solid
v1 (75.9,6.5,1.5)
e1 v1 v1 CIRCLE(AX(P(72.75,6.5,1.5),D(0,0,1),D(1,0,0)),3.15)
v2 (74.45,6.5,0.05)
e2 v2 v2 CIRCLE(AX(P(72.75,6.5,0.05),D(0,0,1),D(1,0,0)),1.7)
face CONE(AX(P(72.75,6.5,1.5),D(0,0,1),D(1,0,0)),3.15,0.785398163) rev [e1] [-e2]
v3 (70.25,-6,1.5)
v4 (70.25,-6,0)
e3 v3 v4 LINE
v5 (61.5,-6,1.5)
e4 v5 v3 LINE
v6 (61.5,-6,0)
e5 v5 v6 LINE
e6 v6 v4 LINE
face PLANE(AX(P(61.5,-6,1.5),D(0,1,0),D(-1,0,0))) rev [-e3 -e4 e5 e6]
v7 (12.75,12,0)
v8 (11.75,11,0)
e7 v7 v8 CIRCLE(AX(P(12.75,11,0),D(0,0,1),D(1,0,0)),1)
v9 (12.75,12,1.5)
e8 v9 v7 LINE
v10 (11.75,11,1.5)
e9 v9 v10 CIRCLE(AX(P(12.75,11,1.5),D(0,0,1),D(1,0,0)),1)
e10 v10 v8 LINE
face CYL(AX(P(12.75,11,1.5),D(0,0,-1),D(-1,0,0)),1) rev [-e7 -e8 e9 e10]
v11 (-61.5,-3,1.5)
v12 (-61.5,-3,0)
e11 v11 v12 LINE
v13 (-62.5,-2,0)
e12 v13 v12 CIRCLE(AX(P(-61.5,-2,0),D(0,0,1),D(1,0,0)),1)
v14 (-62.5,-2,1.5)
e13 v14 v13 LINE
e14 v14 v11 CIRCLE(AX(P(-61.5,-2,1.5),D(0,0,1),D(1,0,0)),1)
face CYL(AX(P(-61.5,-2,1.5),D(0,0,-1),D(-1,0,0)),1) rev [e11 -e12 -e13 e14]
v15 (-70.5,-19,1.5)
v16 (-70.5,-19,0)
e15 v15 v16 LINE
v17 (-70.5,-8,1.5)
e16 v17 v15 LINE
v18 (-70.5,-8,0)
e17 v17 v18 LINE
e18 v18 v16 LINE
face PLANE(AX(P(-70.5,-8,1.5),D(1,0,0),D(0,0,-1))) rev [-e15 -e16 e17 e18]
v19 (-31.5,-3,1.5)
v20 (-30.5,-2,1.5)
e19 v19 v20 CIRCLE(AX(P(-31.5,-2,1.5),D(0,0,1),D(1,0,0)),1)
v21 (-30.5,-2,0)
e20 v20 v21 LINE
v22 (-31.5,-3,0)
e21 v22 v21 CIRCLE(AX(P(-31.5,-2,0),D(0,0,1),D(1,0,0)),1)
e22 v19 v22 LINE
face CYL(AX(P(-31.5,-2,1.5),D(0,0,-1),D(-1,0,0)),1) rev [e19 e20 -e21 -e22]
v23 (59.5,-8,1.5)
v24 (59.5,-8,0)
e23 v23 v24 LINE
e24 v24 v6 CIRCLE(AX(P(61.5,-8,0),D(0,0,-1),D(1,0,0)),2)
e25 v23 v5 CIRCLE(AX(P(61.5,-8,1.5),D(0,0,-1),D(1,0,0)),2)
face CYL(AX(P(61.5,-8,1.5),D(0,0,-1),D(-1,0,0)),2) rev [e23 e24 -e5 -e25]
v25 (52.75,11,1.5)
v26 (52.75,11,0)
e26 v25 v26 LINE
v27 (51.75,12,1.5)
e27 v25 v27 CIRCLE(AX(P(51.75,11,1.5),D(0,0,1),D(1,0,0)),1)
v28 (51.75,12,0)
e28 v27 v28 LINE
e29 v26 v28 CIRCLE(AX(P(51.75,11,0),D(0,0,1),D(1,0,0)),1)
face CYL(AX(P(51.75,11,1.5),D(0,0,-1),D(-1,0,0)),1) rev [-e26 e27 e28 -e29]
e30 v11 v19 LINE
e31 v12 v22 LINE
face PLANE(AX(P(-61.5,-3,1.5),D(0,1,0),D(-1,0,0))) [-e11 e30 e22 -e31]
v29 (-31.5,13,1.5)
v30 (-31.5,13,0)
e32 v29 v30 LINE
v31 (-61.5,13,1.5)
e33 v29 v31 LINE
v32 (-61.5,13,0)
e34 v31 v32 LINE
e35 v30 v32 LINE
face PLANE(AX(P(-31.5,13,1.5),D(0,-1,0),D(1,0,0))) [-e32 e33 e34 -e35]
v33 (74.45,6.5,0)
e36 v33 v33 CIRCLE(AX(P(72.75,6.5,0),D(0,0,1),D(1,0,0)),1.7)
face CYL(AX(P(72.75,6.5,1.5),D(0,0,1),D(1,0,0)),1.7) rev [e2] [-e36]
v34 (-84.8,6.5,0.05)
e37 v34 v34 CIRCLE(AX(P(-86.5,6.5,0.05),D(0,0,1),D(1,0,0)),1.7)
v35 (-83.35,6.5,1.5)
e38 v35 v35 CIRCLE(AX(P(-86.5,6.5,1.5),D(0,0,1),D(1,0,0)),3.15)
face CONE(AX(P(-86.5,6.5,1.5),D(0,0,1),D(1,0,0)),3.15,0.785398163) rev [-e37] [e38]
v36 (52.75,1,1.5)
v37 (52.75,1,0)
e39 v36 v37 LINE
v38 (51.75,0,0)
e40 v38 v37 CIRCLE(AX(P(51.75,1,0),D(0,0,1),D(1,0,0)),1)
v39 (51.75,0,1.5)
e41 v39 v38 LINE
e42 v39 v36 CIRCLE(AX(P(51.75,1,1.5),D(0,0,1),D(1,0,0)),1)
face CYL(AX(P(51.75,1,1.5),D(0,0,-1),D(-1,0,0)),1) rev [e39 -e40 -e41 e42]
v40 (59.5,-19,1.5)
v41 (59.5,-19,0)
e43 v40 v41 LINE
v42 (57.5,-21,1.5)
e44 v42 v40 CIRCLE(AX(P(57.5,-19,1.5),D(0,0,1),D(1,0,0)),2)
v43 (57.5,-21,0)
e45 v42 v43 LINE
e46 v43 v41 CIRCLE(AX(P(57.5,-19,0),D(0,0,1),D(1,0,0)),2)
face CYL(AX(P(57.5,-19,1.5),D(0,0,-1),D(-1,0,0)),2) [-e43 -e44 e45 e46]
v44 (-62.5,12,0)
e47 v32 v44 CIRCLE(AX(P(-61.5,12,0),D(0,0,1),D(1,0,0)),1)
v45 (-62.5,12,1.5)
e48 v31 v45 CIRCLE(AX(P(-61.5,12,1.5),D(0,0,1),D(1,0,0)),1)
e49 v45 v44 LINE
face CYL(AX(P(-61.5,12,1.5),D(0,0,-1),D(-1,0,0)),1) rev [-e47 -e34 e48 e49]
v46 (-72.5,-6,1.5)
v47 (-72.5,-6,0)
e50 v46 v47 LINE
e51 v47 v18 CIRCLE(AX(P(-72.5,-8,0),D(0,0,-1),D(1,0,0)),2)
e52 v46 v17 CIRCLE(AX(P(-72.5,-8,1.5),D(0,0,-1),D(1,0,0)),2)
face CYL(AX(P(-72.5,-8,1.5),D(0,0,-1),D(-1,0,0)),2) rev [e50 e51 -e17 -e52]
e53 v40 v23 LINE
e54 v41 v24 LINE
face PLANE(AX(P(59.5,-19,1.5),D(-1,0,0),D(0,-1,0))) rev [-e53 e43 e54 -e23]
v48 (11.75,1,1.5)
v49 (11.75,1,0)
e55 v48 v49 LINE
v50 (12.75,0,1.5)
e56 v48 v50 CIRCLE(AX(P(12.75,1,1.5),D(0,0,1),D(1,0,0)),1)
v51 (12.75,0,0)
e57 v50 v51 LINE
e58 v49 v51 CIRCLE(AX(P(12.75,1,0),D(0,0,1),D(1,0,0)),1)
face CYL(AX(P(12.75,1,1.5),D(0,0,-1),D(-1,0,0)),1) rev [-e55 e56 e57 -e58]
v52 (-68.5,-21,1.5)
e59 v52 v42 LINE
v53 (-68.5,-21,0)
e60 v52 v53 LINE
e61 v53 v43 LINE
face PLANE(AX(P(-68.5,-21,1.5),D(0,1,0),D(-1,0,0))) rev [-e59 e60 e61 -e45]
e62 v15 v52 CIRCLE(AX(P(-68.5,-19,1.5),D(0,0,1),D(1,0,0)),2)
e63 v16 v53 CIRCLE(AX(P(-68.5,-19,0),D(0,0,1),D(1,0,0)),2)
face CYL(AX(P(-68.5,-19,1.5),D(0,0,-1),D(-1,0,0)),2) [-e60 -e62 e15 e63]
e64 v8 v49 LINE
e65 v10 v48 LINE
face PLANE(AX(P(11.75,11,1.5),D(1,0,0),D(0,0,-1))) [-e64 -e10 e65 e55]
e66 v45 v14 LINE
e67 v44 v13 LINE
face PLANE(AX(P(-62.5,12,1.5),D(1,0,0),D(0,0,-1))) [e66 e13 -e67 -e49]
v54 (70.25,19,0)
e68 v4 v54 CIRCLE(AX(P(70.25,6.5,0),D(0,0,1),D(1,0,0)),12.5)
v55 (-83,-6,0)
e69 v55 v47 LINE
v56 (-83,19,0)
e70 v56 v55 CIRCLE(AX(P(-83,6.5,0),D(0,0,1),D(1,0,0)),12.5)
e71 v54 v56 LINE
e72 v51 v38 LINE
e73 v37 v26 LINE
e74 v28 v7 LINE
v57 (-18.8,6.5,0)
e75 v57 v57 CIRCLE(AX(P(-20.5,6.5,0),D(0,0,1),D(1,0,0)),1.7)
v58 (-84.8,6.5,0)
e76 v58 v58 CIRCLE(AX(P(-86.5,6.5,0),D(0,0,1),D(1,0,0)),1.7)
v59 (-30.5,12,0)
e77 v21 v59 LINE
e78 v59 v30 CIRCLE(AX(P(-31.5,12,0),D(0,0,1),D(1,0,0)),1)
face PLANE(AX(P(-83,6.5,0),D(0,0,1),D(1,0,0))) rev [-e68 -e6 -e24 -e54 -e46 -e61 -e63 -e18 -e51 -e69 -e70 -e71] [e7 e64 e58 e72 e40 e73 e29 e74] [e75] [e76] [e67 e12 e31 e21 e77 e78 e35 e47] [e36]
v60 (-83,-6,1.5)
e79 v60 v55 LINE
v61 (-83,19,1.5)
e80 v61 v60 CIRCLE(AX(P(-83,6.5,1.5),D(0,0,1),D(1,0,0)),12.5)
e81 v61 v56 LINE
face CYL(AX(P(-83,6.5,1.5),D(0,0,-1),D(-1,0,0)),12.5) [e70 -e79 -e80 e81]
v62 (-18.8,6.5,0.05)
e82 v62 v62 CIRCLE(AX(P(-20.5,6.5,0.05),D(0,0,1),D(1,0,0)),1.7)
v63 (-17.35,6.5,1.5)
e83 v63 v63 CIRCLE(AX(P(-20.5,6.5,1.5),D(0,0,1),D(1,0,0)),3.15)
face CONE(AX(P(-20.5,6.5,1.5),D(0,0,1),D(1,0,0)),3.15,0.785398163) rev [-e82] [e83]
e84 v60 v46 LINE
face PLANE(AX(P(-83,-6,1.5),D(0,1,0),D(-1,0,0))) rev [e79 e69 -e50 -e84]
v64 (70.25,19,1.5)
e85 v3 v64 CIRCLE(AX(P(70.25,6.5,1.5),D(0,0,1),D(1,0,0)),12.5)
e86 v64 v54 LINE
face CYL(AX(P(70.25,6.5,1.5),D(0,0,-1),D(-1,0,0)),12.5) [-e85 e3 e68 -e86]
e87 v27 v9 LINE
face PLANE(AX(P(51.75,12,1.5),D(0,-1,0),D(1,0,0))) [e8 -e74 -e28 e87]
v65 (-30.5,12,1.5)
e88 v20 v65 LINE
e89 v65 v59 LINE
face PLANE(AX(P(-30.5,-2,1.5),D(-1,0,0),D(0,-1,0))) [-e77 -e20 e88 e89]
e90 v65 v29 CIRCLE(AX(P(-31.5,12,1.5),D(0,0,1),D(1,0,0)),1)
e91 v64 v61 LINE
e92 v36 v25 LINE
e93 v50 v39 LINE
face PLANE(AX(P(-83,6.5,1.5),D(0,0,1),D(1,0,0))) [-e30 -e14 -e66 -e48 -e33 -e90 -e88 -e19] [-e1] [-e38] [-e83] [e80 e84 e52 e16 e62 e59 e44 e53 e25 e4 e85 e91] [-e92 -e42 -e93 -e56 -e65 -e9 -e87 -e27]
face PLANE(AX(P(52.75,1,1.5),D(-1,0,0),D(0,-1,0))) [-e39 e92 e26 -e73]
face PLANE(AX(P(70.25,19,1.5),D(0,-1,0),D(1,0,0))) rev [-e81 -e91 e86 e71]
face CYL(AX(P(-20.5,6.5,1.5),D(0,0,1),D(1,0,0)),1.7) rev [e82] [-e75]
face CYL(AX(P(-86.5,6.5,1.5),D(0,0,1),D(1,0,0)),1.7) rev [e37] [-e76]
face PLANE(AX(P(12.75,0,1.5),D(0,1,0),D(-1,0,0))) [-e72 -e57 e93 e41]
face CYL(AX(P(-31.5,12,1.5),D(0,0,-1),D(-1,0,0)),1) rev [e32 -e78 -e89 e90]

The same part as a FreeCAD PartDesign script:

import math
import FreeCAD as App
import Part
import Sketcher
Q = App.Units.Quantity


def add_polygon(sketch, points):
    """Adds a closed chain of lines whose ends are joined by coincident constraints."""
    first, n = sketch.GeometryCount, len(points)
    for a, b in zip(points, points[1:] + points[:1]):
        sketch.addGeometry(Part.LineSegment(App.Vector(*a, 0), App.Vector(*b, 0)), False)
    for i in range(n):
        sketch.addConstraint(Sketcher.Constraint("Coincident", first + i, 2, first + (i + 1) % n, 1))

doc = App.newDocument("Part")
body = doc.addObject("PartDesign::Body", "Body")

# Sketch on XY plane
sketch1 = doc.addObject("Sketcher::SketchObject", "Sketch")
body.addObject(sketch1)
sketch1.AttachmentSupport = (doc.XY_Plane, [""])
sketch1.MapMode = "FlatFace"
sketch1.addGeometry(Part.LineSegment(App.Vector(-83, -6, 0), App.Vector(-72.5, -6, 0)), False)
sketch1.addGeometry(Part.ArcOfCircle(Part.Circle(App.Vector(-72.5, -8, 0), App.Vector(0, 0, 1), 2), math.radians(0), math.radians(90)), False)
sketch1.addGeometry(Part.LineSegment(App.Vector(-70.5, -8, 0), App.Vector(-70.5, -19, 0)), False)
sketch1.addGeometry(Part.ArcOfCircle(Part.Circle(App.Vector(-68.5, -19, 0), App.Vector(0, 0, 1), 2), math.radians(-180), math.radians(-90)), False)
sketch1.addGeometry(Part.LineSegment(App.Vector(-68.5, -21, 0), App.Vector(57.5, -21, 0)), False)
sketch1.addGeometry(Part.ArcOfCircle(Part.Circle(App.Vector(57.5, -19, 0), App.Vector(0, 0, 1), 2), math.radians(-90), math.radians(0)), False)
sketch1.addGeometry(Part.LineSegment(App.Vector(59.5, -19, 0), App.Vector(59.5, -8, 0)), False)
sketch1.addGeometry(Part.ArcOfCircle(Part.Circle(App.Vector(61.5, -8, 0), App.Vector(0, 0, 1), 2), math.radians(90), math.radians(180)), False)
sketch1.addGeometry(Part.LineSegment(App.Vector(61.5, -6, 0), App.Vector(70.25, -6, 0)), False)
sketch1.addGeometry(Part.ArcOfCircle(Part.Circle(App.Vector(70.25, 6.5, 0), App.Vector(0, 0, 1), 12.5), math.radians(-90), math.radians(90)), False)
sketch1.addGeometry(Part.LineSegment(App.Vector(70.25, 19, 0), App.Vector(-83, 19, 0)), False)
sketch1.addGeometry(Part.ArcOfCircle(Part.Circle(App.Vector(-83, 6.5, 0), App.Vector(0, 0, 1), 12.5), math.radians(90), math.radians(270)), False)
sketch1.addGeometry(Part.Circle(App.Vector(-86.5, 6.5, 0), App.Vector(0, 0, 1), 1), False)
sketch1.addGeometry(Part.LineSegment(App.Vector(-61.5, 13, 0), App.Vector(-31.5, 13, 0)), False)
sketch1.addGeometry(Part.ArcOfCircle(Part.Circle(App.Vector(-31.5, 12, 0), App.Vector(0, 0, 1), 1), math.radians(0), math.radians(90)), False)
sketch1.addGeometry(Part.LineSegment(App.Vector(-30.5, 12, 0), App.Vector(-30.5, -2, 0)), False)
sketch1.addGeometry(Part.ArcOfCircle(Part.Circle(App.Vector(-31.5, -2, 0), App.Vector(0, 0, 1), 1), math.radians(-90), math.radians(0)), False)
sketch1.addGeometry(Part.LineSegment(App.Vector(-31.5, -3, 0), App.Vector(-61.5, -3, 0)), False)
sketch1.addGeometry(Part.ArcOfCircle(Part.Circle(App.Vector(-61.5, -2, 0), App.Vector(0, 0, 1), 1), math.radians(-180), math.radians(-90)), False)
sketch1.addGeometry(Part.LineSegment(App.Vector(-62.5, -2, 0), App.Vector(-62.5, 12, 0)), False)
sketch1.addGeometry(Part.ArcOfCircle(Part.Circle(App.Vector(-61.5, 12, 0), App.Vector(0, 0, 1), 1), math.radians(90), math.radians(180)), False)
sketch1.addGeometry(Part.Circle(App.Vector(-20.5, 6.5, 0), App.Vector(0, 0, 1), 1), False)
sketch1.addGeometry(Part.LineSegment(App.Vector(12.75, 12, 0), App.Vector(51.75, 12, 0)), False)
sketch1.addGeometry(Part.ArcOfCircle(Part.Circle(App.Vector(51.75, 11, 0), App.Vector(0, 0, 1), 1), math.radians(0), math.radians(90)), False)
sketch1.addGeometry(Part.LineSegment(App.Vector(52.75, 11, 0), App.Vector(52.75, 1, 0)), False)
sketch1.addGeometry(Part.ArcOfCircle(Part.Circle(App.Vector(51.75, 1, 0), App.Vector(0, 0, 1), 1), math.radians(-90), math.radians(0)), False)
sketch1.addGeometry(Part.LineSegment(App.Vector(51.75, 0, 0), App.Vector(12.75, 0, 0)), False)
sketch1.addGeometry(Part.ArcOfCircle(Part.Circle(App.Vector(12.75, 1, 0), App.Vector(0, 0, 1), 1), math.radians(-180), math.radians(-90)), False)
sketch1.addGeometry(Part.LineSegment(App.Vector(11.75, 1, 0), App.Vector(11.75, 11, 0)), False)
sketch1.addGeometry(Part.ArcOfCircle(Part.Circle(App.Vector(12.75, 11, 0), App.Vector(0, 0, 1), 1), math.radians(90), math.radians(180)), False)
sketch1.addGeometry(Part.Circle(App.Vector(72.75, 6.5, 0), App.Vector(0, 0, 1), 1), False)
sketch1.addConstraint(Sketcher.Constraint("Tangent", 0, 2, 1, 2))
sketch1.addConstraint(Sketcher.Constraint("Tangent", 1, 1, 2, 1))
sketch1.addConstraint(Sketcher.Constraint("Tangent", 2, 2, 3, 1))
sketch1.addConstraint(Sketcher.Constraint("Tangent", 3, 2, 4, 1))
sketch1.addConstraint(Sketcher.Constraint("Tangent", 4, 2, 5, 1))
sketch1.addConstraint(Sketcher.Constraint("Tangent", 5, 2, 6, 1))
sketch1.addConstraint(Sketcher.Constraint("Tangent", 6, 2, 7, 2))
sketch1.addConstraint(Sketcher.Constraint("Tangent", 7, 1, 8, 1))
sketch1.addConstraint(Sketcher.Constraint("Tangent", 8, 2, 9, 1))
sketch1.addConstraint(Sketcher.Constraint("Tangent", 9, 2, 10, 1))
sketch1.addConstraint(Sketcher.Constraint("Tangent", 10, 2, 11, 1))
sketch1.addConstraint(Sketcher.Constraint("Tangent", 11, 2, 0, 1))
sketch1.addConstraint(Sketcher.Constraint("Tangent", 13, 2, 14, 2))
sketch1.addConstraint(Sketcher.Constraint("Tangent", 14, 1, 15, 1))
sketch1.addConstraint(Sketcher.Constraint("Tangent", 15, 2, 16, 2))
sketch1.addConstraint(Sketcher.Constraint("Tangent", 16, 1, 17, 1))
sketch1.addConstraint(Sketcher.Constraint("Tangent", 17, 2, 18, 2))
sketch1.addConstraint(Sketcher.Constraint("Tangent", 18, 1, 19, 1))
sketch1.addConstraint(Sketcher.Constraint("Tangent", 19, 2, 20, 2))
sketch1.addConstraint(Sketcher.Constraint("Tangent", 20, 1, 13, 1))
sketch1.addConstraint(Sketcher.Constraint("Tangent", 22, 2, 23, 2))
sketch1.addConstraint(Sketcher.Constraint("Tangent", 23, 1, 24, 1))
sketch1.addConstraint(Sketcher.Constraint("Tangent", 24, 2, 25, 2))
sketch1.addConstraint(Sketcher.Constraint("Tangent", 25, 1, 26, 1))
sketch1.addConstraint(Sketcher.Constraint("Tangent", 26, 2, 27, 2))
sketch1.addConstraint(Sketcher.Constraint("Tangent", 27, 1, 28, 1))
sketch1.addConstraint(Sketcher.Constraint("Tangent", 28, 2, 29, 2))
sketch1.addConstraint(Sketcher.Constraint("Tangent", 29, 1, 22, 1))
sketch1.addConstraint(Sketcher.Constraint("Horizontal", 0))
sketch1.addConstraint(Sketcher.Constraint("Vertical", 2))
sketch1.addConstraint(Sketcher.Constraint("Horizontal", 4))
sketch1.addConstraint(Sketcher.Constraint("Vertical", 6))
sketch1.addConstraint(Sketcher.Constraint("Horizontal", 8))
sketch1.addConstraint(Sketcher.Constraint("Horizontal", 10))
sketch1.addConstraint(Sketcher.Constraint("Horizontal", 13))
sketch1.addConstraint(Sketcher.Constraint("Vertical", 15))
sketch1.addConstraint(Sketcher.Constraint("Horizontal", 17))
sketch1.addConstraint(Sketcher.Constraint("Vertical", 19))
sketch1.addConstraint(Sketcher.Constraint("Horizontal", 22))
sketch1.addConstraint(Sketcher.Constraint("Vertical", 24))
sketch1.addConstraint(Sketcher.Constraint("Horizontal", 26))
sketch1.addConstraint(Sketcher.Constraint("Vertical", 28))
sketch1.addConstraint(Sketcher.Constraint("Equal", 1, 3))
sketch1.addConstraint(Sketcher.Constraint("Equal", 3, 5))
sketch1.addConstraint(Sketcher.Constraint("Equal", 5, 7))
sketch1.addConstraint(Sketcher.Constraint("Equal", 9, 11))
sketch1.addConstraint(Sketcher.Constraint("Equal", 12, 14))
sketch1.addConstraint(Sketcher.Constraint("Equal", 14, 16))
sketch1.addConstraint(Sketcher.Constraint("Equal", 16, 18))
sketch1.addConstraint(Sketcher.Constraint("Equal", 18, 20))
sketch1.addConstraint(Sketcher.Constraint("Equal", 20, 21))
sketch1.addConstraint(Sketcher.Constraint("Equal", 21, 23))
sketch1.addConstraint(Sketcher.Constraint("Equal", 23, 25))
sketch1.addConstraint(Sketcher.Constraint("Equal", 25, 27))
sketch1.addConstraint(Sketcher.Constraint("Equal", 27, 29))
sketch1.addConstraint(Sketcher.Constraint("Equal", 29, 30))
sketch1.addConstraint(Sketcher.Constraint("PointOnObject", 25, 1, -1))
sketch1.addConstraint(Sketcher.Constraint("Horizontal", 11, 3, 12, 3))
sketch1.addConstraint(Sketcher.Constraint("Horizontal", 12, 3, 21, 3))
sketch1.addConstraint(Sketcher.Constraint("Horizontal", 21, 3, 30, 3))
sketch1.addConstraint(Sketcher.Constraint("Horizontal", 19, 2, 22, 2))
sketch1.addConstraint(Sketcher.Constraint("Diameter", 12, 2.0))
sketch1.addConstraint(Sketcher.Constraint("Radius", 1, 2.0))
sketch1.addConstraint(Sketcher.Constraint("Radius", 9, 12.5))
sketch1.addConstraint(Sketcher.Constraint("DistanceX", 4, 1, 4, 2, 126.0))
sketch1.addConstraint(Sketcher.Constraint("DistanceX", 13, 1, 13, 2, 30.0))
sketch1.addConstraint(Sketcher.Constraint("DistanceX", 22, 1, 22, 2, 39.0))
sketch1.addConstraint(Sketcher.Constraint("DistanceY", 2, 2, 2, 1, 11.0))
sketch1.addConstraint(Sketcher.Constraint("DistanceY", 15, 2, 15, 1, 14.0))
sketch1.addConstraint(Sketcher.Constraint("DistanceY", 24, 2, 24, 1, 10.0))
sketch1.addConstraint(Sketcher.Constraint("DistanceX", 0, 1, 0, 2, 10.5))
sketch1.addConstraint(Sketcher.Constraint("DistanceY", 1, 3, -1, 1, 8.0))
sketch1.addConstraint(Sketcher.Constraint("DistanceX", 11, 3, -1, 1, 83.0))
sketch1.addConstraint(Sketcher.Constraint("DistanceX", 12, 3, 1, 3, 14.0))
sketch1.addConstraint(Sketcher.Constraint("DistanceX", 1, 3, 14, 3, 41.0))
sketch1.addConstraint(Sketcher.Constraint("DistanceX", 14, 3, 21, 3, 11.0))
sketch1.addConstraint(Sketcher.Constraint("DistanceX", 23, 3, 30, 3, 21.0))
sketch1.addConstraint(Sketcher.Constraint("DistanceX", 8, 1, 8, 2, 8.75))
sketch1.addConstraint(Sketcher.Constraint("DistanceX", 23, 3, 9, 3, 18.5))
pad1 = doc.addObject("PartDesign::Pad", "Pad")
body.addObject(pad1)
pad1.Profile = sketch1
pad1.Length = 1.5

# Sketch on YZ plane
sketch2 = doc.addObject("Sketcher::SketchObject", "Sketch001")
body.addObject(sketch2)
sketch2.AttachmentSupport = (doc.YZ_Plane, [""])
sketch2.MapMode = "FlatFace"
sketch2.AttachmentOffset = App.Placement(App.Vector(0, 0, -86.5), App.Rotation())
add_polygon(sketch2, [(6.5, 0), (6.5, 1.5), (3.35, 1.5), (4.8, 0.05), (4.8, 0)])  # lines 0-4
sketch2.addGeometry(Part.LineSegment(App.Vector(6.5, 1.5, 0), App.Vector(6.5, 0, 0)), True)  # axis
sketch2.addConstraint(Sketcher.Constraint("Vertical", 0))
sketch2.addConstraint(Sketcher.Constraint("Horizontal", 1))
sketch2.addConstraint(Sketcher.Constraint("Vertical", 3))
sketch2.addConstraint(Sketcher.Constraint("Horizontal", 4))
sketch2.addConstraint(Sketcher.Constraint("Vertical", 5))
sketch2.addConstraint(Sketcher.Constraint("Coincident", 5, 1, 0, 2))
sketch2.addConstraint(Sketcher.Constraint("PointOnObject", 3, 2, -1))
sketch2.addConstraint(Sketcher.Constraint("PointOnObject", 5, 2, -1))
sketch2.addConstraint(Sketcher.Constraint("Angle", 2, Q("-45 deg")))
sketch2.addConstraint(Sketcher.Constraint("DistanceX", 4, 1, 4, 2, 1.7))
sketch2.addConstraint(Sketcher.Constraint("DistanceY", 0, 1, 0, 2, 1.5))
sketch2.addConstraint(Sketcher.Constraint("DistanceX", 1, 2, 1, 1, 3.15))
sketch2.addConstraint(Sketcher.Constraint("DistanceX", -1, 1, 0, 2, 6.5))
groove = doc.addObject("PartDesign::Groove", "Groove")
body.addObject(groove)
groove.Profile = sketch2
groove.ReferenceAxis = (sketch2, ["Axis0"])
groove.Angle = 360
doc.recompute()

linearpattern = doc.addObject("PartDesign::LinearPattern", "LinearPattern")
body.addObject(linearpattern)
linearpattern.Originals = [groove]
linearpattern.Direction = (doc.X_Axis, [""])
linearpattern.Mode = "offset"
linearpattern.Offset = 66
linearpattern.Occurrences = 2
body.Tip = linearpattern
doc.recompute()

linearpattern2 = doc.addObject("PartDesign::LinearPattern", "LinearPattern001")
body.addObject(linearpattern2)
linearpattern2.Originals = [groove]
linearpattern2.Direction = (doc.X_Axis, [""])
linearpattern2.Mode = "offset"
linearpattern2.Offset = 159.25
linearpattern2.Occurrences = 2
body.Tip = linearpattern2

doc.recompute()
